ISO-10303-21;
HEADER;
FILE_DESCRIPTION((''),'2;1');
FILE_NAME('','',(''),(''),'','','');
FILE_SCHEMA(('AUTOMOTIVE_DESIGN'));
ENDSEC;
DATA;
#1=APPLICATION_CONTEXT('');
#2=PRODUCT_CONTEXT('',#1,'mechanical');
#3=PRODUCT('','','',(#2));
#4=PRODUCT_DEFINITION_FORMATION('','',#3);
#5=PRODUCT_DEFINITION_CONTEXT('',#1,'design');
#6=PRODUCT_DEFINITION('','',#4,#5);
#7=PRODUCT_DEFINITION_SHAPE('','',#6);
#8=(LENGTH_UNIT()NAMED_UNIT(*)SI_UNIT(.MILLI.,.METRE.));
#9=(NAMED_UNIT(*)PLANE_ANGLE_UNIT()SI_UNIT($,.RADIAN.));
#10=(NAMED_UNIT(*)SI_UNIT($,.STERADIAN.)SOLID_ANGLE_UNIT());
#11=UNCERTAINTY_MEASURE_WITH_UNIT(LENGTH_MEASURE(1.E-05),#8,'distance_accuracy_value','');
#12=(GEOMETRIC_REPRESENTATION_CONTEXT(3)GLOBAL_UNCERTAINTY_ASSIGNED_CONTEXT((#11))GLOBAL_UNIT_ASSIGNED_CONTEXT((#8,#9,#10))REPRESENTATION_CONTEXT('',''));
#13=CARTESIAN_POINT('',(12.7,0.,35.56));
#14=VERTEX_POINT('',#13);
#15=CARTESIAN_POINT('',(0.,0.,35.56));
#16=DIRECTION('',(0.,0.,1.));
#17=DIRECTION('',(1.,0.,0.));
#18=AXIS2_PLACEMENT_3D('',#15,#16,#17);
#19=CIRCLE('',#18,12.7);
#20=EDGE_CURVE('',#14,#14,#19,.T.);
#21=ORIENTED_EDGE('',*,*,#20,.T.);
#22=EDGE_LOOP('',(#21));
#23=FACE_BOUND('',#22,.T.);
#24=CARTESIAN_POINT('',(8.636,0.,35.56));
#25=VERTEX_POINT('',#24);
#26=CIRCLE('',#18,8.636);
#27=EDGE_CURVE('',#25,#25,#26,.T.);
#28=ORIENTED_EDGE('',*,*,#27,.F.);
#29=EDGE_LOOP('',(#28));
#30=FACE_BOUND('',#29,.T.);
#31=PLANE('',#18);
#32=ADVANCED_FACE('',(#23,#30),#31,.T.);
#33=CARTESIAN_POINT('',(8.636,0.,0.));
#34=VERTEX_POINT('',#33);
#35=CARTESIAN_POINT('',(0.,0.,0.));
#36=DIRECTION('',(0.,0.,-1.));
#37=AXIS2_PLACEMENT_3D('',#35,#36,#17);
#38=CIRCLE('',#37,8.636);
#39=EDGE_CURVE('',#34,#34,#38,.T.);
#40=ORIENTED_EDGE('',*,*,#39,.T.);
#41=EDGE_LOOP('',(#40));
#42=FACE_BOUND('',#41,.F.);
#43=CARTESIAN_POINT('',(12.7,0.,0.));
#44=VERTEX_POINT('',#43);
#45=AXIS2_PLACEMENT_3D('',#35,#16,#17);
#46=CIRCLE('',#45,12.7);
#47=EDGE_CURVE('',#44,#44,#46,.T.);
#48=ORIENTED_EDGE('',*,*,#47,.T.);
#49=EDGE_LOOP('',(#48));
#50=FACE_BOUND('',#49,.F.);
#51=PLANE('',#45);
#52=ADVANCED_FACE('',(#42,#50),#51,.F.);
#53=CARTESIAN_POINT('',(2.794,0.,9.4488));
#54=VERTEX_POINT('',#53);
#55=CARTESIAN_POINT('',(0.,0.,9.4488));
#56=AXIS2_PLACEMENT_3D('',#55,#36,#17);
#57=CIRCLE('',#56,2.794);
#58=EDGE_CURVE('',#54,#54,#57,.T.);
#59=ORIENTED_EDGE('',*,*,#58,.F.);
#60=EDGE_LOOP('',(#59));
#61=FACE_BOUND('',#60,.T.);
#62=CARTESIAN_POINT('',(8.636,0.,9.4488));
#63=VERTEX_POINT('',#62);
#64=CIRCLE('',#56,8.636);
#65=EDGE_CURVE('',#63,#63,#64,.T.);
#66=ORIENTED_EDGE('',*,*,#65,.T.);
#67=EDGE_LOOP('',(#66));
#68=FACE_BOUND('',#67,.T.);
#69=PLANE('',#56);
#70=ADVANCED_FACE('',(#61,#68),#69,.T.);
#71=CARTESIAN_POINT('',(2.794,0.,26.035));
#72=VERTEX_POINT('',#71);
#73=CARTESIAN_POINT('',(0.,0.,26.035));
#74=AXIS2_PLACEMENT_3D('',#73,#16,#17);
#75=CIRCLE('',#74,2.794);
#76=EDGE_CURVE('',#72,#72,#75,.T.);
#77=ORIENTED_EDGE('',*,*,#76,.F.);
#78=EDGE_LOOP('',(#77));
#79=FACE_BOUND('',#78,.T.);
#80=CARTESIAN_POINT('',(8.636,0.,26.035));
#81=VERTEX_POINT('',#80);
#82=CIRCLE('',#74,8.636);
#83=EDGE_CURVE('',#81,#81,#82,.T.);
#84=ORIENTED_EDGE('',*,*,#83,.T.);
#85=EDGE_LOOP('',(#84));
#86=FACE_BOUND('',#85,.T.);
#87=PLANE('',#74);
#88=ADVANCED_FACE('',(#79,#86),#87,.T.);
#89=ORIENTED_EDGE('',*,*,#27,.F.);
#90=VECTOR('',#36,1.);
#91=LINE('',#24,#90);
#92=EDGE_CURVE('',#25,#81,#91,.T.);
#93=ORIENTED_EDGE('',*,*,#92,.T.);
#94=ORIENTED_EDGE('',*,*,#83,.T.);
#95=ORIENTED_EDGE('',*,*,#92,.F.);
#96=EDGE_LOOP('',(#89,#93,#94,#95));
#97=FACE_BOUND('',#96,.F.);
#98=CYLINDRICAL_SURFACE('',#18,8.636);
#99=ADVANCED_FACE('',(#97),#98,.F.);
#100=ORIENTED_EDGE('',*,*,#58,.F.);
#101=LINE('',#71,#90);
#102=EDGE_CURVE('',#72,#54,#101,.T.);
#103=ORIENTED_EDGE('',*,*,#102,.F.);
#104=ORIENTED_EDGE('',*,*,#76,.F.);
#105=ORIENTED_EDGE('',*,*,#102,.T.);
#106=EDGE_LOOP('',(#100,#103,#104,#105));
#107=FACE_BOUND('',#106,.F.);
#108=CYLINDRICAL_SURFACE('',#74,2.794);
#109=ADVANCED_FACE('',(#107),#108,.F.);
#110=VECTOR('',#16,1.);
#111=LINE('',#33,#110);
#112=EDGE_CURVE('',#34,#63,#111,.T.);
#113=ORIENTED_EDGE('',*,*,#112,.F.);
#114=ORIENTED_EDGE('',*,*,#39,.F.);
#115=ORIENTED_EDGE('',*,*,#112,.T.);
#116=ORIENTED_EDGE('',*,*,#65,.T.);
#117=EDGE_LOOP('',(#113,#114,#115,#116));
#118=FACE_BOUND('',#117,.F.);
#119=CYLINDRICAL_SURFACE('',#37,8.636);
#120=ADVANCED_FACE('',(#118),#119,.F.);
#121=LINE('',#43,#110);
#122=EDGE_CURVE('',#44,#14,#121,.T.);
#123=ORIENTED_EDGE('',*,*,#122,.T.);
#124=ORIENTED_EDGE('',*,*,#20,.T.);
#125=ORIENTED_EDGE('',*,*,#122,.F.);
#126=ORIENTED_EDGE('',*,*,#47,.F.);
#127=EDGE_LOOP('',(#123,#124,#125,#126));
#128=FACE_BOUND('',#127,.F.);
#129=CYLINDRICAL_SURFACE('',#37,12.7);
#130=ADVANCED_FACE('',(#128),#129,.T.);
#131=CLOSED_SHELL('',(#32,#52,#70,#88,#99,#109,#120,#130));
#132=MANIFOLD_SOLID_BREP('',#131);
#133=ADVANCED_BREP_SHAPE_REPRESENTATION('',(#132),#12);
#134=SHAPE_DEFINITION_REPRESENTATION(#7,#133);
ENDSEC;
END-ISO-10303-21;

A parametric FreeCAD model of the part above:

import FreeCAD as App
import Part
import Sketcher

V = App.Vector
Q = App.Units.Quantity

doc = App.newDocument("Part")
body = doc.addObject("PartDesign::Body", "Body")

# Sketch on XY plane
sketch1 = body.newObject("Sketcher::SketchObject", "Sketch")
sketch1.AttachmentSupport = (doc.getObject("XY_Plane"), [""])
sketch1.MapMode = "FlatFace"
sketch1.addGeometry(Part.Circle(V(0, 0, 0), V(0, 0, 1), 13), False)
sketch1.addConstraint([
    Sketcher.Constraint("Coincident", 0, 3, -1, 1),
    Sketcher.Constraint("Diameter", 0, Q("1 in")),
])
pad1 = body.newObject("PartDesign::Pad", "Pad")
pad1.Profile = sketch1
pad1.Length = Q("1.4 in")

# Sketch on XY plane
sketch2 = body.newObject("Sketcher::SketchObject", "Sketch001")
sketch2.AttachmentSupport = (doc.getObject("XY_Plane"), [""])
sketch2.MapMode = "FlatFace"
sketch2.AttachmentOffset = App.Placement(V(0, 0, 1.4 * 25.4), App.Rotation())
sketch2.addGeometry(Part.Circle(V(0, 0, 0), V(0, 0, 1), 9), False)
sketch2.addConstraint([
    Sketcher.Constraint("Coincident", 0, 3, -1, 1),
    Sketcher.Constraint("Diameter", 0, Q("0.68 in")),
])
pocket1 = body.newObject("PartDesign::Pocket", "Pocket")
pocket1.Profile = sketch2
pocket1.Length = Q("0.375 in")

# Sketch on XY plane
sketch3 = body.newObject("Sketcher::SketchObject", "Sketch002")
sketch3.AttachmentSupport = (doc.getObject("XY_Plane"), [""])
sketch3.MapMode = "FlatFace"
sketch3.AttachmentOffset = App.Placement(V(0, 0, 1.025 * 25.4), App.Rotation())
sketch3.addGeometry(Part.Circle(V(0, 0, 0), V(0, 0, 1), 2.8), False)
sketch3.addConstraint([
    Sketcher.Constraint("Coincident", 0, 3, -1, 1),
    Sketcher.Constraint("Diameter", 0, Q("0.22 in")),
])
pocket2 = body.newObject("PartDesign::Pocket", "Pocket001")
pocket2.Profile = sketch3
pocket2.Length = Q("10 in")

# Sketch on XY plane
sketch4 = body.newObject("Sketcher::SketchObject", "Sketch003")
sketch4.AttachmentSupport = (doc.getObject("XY_Plane"), [""])
sketch4.MapMode = "FlatFace"
sketch4.addGeometry([
    Part.Circle(V(0, 0, 0), V(0, 0, 1), 8.6),
    Part.Circle(V(0, 0, 0), V(0, 0, 1), 2.8),
], False)
sketch4.addConstraint([
    Sketcher.Constraint("Coincident", 0, 3, -1, 1),
    Sketcher.Constraint("Coincident", 1, 3, -1, 1),
    Sketcher.Constraint("Diameter", 0, Q("0.68 in")),
    Sketcher.Constraint("Diameter", 1, Q("0.22 in")),
])
pocket3 = body.newObject("PartDesign::Pocket", "Pocket002")
pocket3.Profile = sketch4
pocket3.Length = Q("0.372 in")
pocket3.Reversed = True

doc.recompute()
